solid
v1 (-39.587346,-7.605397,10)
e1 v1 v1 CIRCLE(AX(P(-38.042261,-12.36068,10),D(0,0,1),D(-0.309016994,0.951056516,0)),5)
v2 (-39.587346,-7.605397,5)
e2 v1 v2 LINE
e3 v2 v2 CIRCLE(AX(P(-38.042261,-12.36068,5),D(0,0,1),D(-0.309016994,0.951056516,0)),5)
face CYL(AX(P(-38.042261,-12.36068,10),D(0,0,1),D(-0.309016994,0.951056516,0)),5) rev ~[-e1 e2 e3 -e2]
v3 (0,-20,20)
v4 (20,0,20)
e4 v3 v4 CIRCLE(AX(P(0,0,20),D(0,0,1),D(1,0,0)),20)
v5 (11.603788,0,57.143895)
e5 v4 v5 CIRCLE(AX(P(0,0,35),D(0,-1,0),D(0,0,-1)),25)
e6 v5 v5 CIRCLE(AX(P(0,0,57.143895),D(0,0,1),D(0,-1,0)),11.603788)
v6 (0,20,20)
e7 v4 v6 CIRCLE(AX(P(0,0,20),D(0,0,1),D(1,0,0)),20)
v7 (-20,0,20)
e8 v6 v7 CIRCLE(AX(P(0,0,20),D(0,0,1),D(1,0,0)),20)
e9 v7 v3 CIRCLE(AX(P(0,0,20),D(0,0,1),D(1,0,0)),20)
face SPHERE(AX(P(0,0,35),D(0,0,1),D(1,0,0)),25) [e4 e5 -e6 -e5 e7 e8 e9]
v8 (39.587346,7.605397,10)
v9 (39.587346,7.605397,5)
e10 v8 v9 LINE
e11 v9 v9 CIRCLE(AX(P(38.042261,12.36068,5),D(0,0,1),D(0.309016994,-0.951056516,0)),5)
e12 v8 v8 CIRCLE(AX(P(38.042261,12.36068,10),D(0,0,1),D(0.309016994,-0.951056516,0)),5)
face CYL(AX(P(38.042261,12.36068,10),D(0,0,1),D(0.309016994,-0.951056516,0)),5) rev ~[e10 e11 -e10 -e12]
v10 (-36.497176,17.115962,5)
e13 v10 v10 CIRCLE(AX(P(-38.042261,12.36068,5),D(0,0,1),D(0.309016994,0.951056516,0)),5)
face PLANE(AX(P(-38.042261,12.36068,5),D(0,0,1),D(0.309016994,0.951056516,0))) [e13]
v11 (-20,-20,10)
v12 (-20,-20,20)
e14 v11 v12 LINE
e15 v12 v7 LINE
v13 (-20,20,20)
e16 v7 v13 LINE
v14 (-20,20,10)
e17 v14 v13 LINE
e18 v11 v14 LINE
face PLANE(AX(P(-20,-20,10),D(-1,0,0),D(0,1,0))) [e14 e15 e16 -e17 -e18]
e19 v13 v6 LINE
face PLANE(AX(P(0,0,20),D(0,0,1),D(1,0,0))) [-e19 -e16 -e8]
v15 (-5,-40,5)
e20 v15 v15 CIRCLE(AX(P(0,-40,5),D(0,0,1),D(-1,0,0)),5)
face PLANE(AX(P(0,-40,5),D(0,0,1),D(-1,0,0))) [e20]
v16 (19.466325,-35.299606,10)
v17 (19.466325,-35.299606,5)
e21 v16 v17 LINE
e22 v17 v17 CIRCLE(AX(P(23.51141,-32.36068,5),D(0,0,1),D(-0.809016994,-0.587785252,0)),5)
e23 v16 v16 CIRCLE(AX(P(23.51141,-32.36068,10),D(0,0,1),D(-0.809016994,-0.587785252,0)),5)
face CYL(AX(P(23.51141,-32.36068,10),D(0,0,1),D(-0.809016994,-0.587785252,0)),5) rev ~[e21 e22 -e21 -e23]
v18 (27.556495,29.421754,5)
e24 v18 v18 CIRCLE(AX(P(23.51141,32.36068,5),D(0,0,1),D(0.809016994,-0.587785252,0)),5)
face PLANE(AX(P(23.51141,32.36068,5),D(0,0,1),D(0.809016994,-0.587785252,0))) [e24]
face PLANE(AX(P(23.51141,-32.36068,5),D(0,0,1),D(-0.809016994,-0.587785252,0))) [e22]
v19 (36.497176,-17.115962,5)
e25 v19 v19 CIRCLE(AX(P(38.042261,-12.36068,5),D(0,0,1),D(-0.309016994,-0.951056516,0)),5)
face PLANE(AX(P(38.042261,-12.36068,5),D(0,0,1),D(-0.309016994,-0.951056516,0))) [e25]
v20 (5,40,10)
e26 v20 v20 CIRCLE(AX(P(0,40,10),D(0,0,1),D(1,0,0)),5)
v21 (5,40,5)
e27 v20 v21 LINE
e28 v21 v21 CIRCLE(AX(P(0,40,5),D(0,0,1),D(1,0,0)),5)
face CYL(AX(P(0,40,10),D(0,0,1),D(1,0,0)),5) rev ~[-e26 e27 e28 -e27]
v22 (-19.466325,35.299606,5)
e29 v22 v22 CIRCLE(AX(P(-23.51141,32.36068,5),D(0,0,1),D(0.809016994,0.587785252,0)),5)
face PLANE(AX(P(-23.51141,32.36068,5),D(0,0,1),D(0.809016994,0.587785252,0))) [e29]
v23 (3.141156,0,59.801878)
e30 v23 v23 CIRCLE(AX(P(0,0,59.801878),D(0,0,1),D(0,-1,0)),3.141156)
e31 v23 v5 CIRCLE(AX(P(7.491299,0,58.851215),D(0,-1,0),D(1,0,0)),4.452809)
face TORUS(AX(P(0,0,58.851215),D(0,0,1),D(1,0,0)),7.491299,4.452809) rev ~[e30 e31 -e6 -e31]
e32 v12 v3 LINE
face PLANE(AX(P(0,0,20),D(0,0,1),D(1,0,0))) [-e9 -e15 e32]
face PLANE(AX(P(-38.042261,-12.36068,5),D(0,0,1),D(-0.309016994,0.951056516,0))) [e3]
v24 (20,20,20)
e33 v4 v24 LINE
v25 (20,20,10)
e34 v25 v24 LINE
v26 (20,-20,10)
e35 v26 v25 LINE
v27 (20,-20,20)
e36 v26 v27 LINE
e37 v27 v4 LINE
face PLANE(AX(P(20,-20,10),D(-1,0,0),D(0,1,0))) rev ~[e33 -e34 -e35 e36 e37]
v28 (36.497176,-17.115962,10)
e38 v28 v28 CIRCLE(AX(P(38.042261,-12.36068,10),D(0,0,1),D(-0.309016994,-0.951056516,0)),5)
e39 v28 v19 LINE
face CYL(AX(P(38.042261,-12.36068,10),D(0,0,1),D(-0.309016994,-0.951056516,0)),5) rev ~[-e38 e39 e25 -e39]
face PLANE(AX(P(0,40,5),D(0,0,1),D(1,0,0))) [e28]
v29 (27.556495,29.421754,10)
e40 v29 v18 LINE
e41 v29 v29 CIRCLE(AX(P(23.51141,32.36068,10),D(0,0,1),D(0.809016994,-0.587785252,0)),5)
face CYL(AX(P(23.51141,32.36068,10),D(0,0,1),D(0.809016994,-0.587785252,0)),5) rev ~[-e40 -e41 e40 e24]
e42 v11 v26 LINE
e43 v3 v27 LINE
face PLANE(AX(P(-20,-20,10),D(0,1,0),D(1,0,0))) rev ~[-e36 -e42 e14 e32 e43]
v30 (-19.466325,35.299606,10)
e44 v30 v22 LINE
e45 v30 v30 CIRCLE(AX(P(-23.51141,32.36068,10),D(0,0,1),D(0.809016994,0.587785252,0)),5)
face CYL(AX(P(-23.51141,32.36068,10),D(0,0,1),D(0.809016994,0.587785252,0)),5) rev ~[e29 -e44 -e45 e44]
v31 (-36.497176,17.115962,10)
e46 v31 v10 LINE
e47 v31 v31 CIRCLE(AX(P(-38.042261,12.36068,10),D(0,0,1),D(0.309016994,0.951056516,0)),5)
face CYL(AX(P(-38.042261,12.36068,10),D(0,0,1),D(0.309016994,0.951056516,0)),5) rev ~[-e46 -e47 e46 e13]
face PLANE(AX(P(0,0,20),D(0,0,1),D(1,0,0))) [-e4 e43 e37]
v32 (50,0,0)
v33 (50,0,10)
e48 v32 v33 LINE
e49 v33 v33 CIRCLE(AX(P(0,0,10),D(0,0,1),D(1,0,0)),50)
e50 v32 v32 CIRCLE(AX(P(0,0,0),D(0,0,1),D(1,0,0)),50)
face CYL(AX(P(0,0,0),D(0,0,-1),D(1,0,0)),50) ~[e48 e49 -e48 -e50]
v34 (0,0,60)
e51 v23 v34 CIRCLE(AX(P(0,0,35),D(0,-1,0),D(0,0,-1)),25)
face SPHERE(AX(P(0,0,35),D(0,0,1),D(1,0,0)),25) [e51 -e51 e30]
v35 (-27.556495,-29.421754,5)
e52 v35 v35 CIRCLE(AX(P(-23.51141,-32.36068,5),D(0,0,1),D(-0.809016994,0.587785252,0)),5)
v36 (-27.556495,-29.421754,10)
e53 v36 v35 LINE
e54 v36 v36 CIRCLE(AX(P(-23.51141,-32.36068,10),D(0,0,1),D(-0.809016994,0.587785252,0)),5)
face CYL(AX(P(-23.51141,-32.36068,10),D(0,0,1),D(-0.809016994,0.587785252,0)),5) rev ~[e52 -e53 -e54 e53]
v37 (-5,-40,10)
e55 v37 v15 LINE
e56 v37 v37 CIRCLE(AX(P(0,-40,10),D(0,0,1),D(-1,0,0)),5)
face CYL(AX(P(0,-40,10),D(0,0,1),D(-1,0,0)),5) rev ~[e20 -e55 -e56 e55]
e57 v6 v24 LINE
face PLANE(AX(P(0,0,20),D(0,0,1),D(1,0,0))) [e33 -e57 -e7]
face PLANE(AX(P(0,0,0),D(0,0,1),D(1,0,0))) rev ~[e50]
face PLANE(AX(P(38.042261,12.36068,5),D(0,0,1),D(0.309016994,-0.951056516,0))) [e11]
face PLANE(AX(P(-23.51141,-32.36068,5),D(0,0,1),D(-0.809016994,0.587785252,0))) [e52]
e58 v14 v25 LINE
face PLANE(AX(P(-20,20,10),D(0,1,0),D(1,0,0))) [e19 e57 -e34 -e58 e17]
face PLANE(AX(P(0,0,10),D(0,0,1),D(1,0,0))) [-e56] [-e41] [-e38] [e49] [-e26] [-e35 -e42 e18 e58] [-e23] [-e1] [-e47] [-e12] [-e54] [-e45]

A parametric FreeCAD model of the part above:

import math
import FreeCAD as App
import Part
import Sketcher
Q = App.Units.Quantity

doc = App.newDocument("Part")
params = doc.addObject("Spreadsheet::Sheet", "Params")
for row, (alias, value) in enumerate([
    ("sketch1_diameter", "100 mm"),
    ("pad1_length", "10 mm"),
    ("sketch2_diameter", "10 mm"),
    ("pocket1_length", "5 mm"),
    ("sketch3_width", "40 mm"),
    ("pad2_length", "10 mm"),
    ("sketch4_radius", "25 mm"),
    ("revolution_angle", "360 deg"),
    ("groove_angle", "360 deg"),
], start=1):
    params.set(f"A{row}", alias)
    params.set(f"B{row}", "=" + value)
    params.setAlias(f"B{row}", alias)

body = doc.addObject("PartDesign::Body", "Body")

# Sketch on XY plane
sketch1 = body.newObject("Sketcher::SketchObject", "Sketch")
sketch1.AttachmentSupport = (doc.getObject("XY_Plane"), [""])
sketch1.MapMode = "FlatFace"
sketch1.addGeometry(Part.Circle(App.Vector(0, 0, 0), App.Vector(0, 0, 1), 50), False)
sketch1.addConstraint([
    Sketcher.Constraint("Coincident", 0, 3, -1, 1),
    Sketcher.Constraint("Diameter", 0, Q("100 mm")),
])
sketch1.setExpression("Constraints[1]", "Params.sketch1_diameter")
pad1 = body.newObject("PartDesign::Pad", "Pad")
pad1.Profile = sketch1
pad1.setExpression("Length", "Params.pad1_length")

# Sketch on XY plane
sketch2 = body.newObject("Sketcher::SketchObject", "Sketch001")
sketch2.AttachmentSupport = (doc.getObject("XY_Plane"), [""])
sketch2.MapMode = "FlatFace"
sketch2.AttachmentOffset = App.Placement(App.Vector(0, 0, 10), App.Rotation())
sketch2.addGeometry(Part.Circle(App.Vector(0, 40, 0), App.Vector(0, 0, 1), 5), False)
sketch2.addConstraint([
    Sketcher.Constraint("PointOnObject", 0, 3, -2),
    Sketcher.Constraint("Diameter", 0, Q("10 mm")),
    Sketcher.Constraint("DistanceY", -1, 1, 0, 3, Q("40 mm")),
])
sketch2.setExpression("Constraints[1]", "Params.sketch2_diameter")
pocket1 = body.newObject("PartDesign::Pocket", "Pocket")
pocket1.Profile = sketch2
pocket1.setExpression("Length", "Params.pocket1_length")
doc.recompute()

polarpattern = body.newObject("PartDesign::PolarPattern", "PolarPattern")
polarpattern.Originals = [pocket1]
polarpattern.Axis = (doc.getObject("Z_Axis"), [""])
polarpattern.Angle = 360
polarpattern.Occurrences = 10
body.Tip = polarpattern

# Sketch on XY plane
sketch3 = body.newObject("Sketcher::SketchObject", "Sketch002")
sketch3.AttachmentSupport = (doc.getObject("XY_Plane"), [""])
sketch3.MapMode = "FlatFace"
sketch3.AttachmentOffset = App.Placement(App.Vector(0, 0, 10), App.Rotation())
sketch3.addGeometry([
    Part.LineSegment(App.Vector(-20, 20, 0), App.Vector(-20, -20, 0)),
    Part.LineSegment(App.Vector(-20, -20, 0), App.Vector(20, -20, 0)),
    Part.LineSegment(App.Vector(20, -20, 0), App.Vector(20, 20, 0)),
    Part.LineSegment(App.Vector(20, 20, 0), App.Vector(-20, 20, 0)),
], False)
sketch3.addConstraint([
    Sketcher.Constraint("Coincident", 0, 2, 1, 1),
    Sketcher.Constraint("Coincident", 1, 2, 2, 1),
    Sketcher.Constraint("Coincident", 2, 2, 3, 1),
    Sketcher.Constraint("Coincident", 3, 2, 0, 1),
    Sketcher.Constraint("Vertical", 0),
    Sketcher.Constraint("Horizontal", 1),
    Sketcher.Constraint("Vertical", 2),
    Sketcher.Constraint("Horizontal", 3),
    Sketcher.Constraint("Symmetric", 0, 2, 2, 2, -1, 1),
    Sketcher.Constraint("Equal", 3, 0),
    Sketcher.Constraint("DistanceX", 1, 1, 1, 2, Q("40 mm")),
])
sketch3.setExpression("Constraints[10]", "Params.sketch3_width")
pad2 = body.newObject("PartDesign::Pad", "Pad001")
pad2.Profile = sketch3
pad2.setExpression("Length", "Params.pad2_length")

# Sketch on XZ plane
sketch4 = body.newObject("Sketcher::SketchObject", "Sketch003")
sketch4.AttachmentSupport = (doc.getObject("XZ_Plane"), [""])
sketch4.MapMode = "FlatFace"
sketch4.addGeometry([
    Part.ArcOfCircle(Part.Circle(App.Vector(0, 35, 0), App.Vector(0, 0, 1), 25), math.radians(-90), math.radians(90)),
    Part.LineSegment(App.Vector(0, 60, 0), App.Vector(0, 10, 0)),
], False)
sketch4.addConstraint([
    Sketcher.Constraint("Coincident", 0, 1, 1, 2),
    Sketcher.Constraint("Coincident", 1, 1, 0, 2),
    Sketcher.Constraint("Vertical", 1),
    Sketcher.Constraint("PointOnObject", 0, 3, -2),
    Sketcher.Constraint("PointOnObject", 0, 1, -2),
    Sketcher.Constraint("Radius", 0, Q("25 mm")),
    Sketcher.Constraint("DistanceY", -1, 1, 0, 3, Q("35 mm")),
])
sketch4.setExpression("Constraints[5]", "Params.sketch4_radius")
revolution = body.newObject("PartDesign::Revolution", "Revolution")
revolution.Profile = sketch4
revolution.ReferenceAxis = (sketch4, ["V_Axis"])
revolution.setExpression("Angle", "Params.revolution_angle")

# Sketch on XZ plane
sketch5 = body.newObject("Sketcher::SketchObject", "Sketch004")
sketch5.AttachmentSupport = (doc.getObject("XZ_Plane"), [""])
sketch5.MapMode = "FlatFace"
sketch5.addGeometry(Part.Circle(App.Vector(7.5, 58.9, 0), App.Vector(0, 0, 1), 4.5), False)
sketch5.addConstraint([
    Sketcher.Constraint("Diameter", 0, Q("8.905618 mm")),
    Sketcher.Constraint("DistanceX", -1, 1, 0, 3, Q("7.491299 mm")),
    Sketcher.Constraint("DistanceY", -1, 1, 0, 3, Q("58.851215 mm")),
])
groove = body.newObject("PartDesign::Groove", "Groove")
groove.Profile = sketch5
groove.ReferenceAxis = (sketch5, ["V_Axis"])
groove.setExpression("Angle", "Params.groove_angle")

doc.recompute()
